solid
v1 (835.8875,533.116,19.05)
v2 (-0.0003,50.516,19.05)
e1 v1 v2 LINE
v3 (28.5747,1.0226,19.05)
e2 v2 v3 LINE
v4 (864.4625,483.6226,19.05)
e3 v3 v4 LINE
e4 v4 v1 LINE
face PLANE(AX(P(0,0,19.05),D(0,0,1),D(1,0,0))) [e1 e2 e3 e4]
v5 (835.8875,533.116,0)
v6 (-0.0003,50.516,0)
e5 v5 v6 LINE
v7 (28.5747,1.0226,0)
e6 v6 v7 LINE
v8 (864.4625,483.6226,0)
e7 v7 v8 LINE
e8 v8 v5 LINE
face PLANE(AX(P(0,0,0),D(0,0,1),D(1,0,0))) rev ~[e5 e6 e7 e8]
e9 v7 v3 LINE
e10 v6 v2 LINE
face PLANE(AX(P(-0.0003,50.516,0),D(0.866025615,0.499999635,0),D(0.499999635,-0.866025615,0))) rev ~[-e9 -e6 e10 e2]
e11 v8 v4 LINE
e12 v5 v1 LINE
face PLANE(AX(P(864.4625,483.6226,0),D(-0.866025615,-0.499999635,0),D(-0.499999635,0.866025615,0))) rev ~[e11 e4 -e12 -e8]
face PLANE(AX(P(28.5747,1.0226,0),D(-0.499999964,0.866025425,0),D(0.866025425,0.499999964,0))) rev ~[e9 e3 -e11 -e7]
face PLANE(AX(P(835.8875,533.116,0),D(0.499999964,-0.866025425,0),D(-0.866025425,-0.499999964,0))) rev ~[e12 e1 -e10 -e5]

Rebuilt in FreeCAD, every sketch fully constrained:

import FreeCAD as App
import Part
import Sketcher
Q = App.Units.Quantity


def add_polygon(sketch, points):
    """Adds a closed chain of lines whose ends are joined by coincident constraints."""
    first, n = sketch.GeometryCount, len(points)
    for a, b in zip(points, points[1:] + points[:1]):
        sketch.addGeometry(Part.LineSegment(App.Vector(*a, 0), App.Vector(*b, 0)), False)
    for i in range(n):
        sketch.addConstraint(Sketcher.Constraint("Coincident", first + i, 2, first + (i + 1) % n, 1))

doc = App.newDocument("Part")
body = doc.addObject("PartDesign::Body", "Body")

# Sketch on XY plane
sketch1 = doc.addObject("Sketcher::SketchObject", "Sketch")
body.addObject(sketch1)
sketch1.AttachmentSupport = (doc.XY_Plane, [""])
sketch1.MapMode = "FlatFace"
add_polygon(sketch1, [(864, 484), (836, 533), (0, 51), (29, 1)])  # lines 0-3
sketch1.addConstraint([
    Sketcher.Constraint("Perpendicular", 0, 1),
    Sketcher.Constraint("Perpendicular", 1, 2),
    Sketcher.Constraint("Perpendicular", 2, 3),
    Sketcher.Constraint("Distance", 1, Q("38 in")),
    Sketcher.Constraint("DistanceX", 1, 2, -1, 1, Q("0 in")),
    Sketcher.Constraint("Angle", 0, Q("120 deg")),
    Sketcher.Constraint("Distance", 0, Q("2.25 in")),
    Sketcher.Constraint("DistanceY", -1, 1, 0, 2, Q("533.116 mm")),
])
pad1 = doc.addObject("PartDesign::Pad", "Pad")
body.addObject(pad1)
pad1.Profile = sketch1
pad1.Length = Q("0.75 in")

doc.recompute()
